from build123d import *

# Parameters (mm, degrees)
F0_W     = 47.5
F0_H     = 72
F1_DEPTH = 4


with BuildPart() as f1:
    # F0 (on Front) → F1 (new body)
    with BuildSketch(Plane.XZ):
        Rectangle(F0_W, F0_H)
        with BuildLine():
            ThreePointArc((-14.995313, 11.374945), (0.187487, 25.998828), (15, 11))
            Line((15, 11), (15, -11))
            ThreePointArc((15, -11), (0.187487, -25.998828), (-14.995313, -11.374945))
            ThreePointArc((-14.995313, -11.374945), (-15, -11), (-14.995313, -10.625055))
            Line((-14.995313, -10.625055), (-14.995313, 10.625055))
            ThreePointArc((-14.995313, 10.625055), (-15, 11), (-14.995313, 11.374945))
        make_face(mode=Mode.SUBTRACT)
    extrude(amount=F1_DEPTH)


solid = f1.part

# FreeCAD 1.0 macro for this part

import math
import FreeCAD as App
import Part
import Sketcher
Q = App.Units.Quantity


def add_polygon(sketch, points):
    """Adds a closed chain of lines whose ends are joined by coincident constraints."""
    first, n = sketch.GeometryCount, len(points)
    for a, b in zip(points, points[1:] + points[:1]):
        sketch.addGeometry(Part.LineSegment(App.Vector(*a, 0), App.Vector(*b, 0)), False)
    for i in range(n):
        sketch.addConstraint(Sketcher.Constraint("Coincident", first + i, 2, first + (i + 1) % n, 1))

doc = App.newDocument("Part")
body = doc.addObject("PartDesign::Body", "Body")

# Sketch on XZ plane
sketch1 = doc.addObject("Sketcher::SketchObject", "Sketch")
body.addObject(sketch1)
sketch1.AttachmentSupport = (doc.XZ_Plane, [""])
sketch1.MapMode = "FlatFace"
add_polygon(sketch1, [(-23.75, 36), (-23.75, -36), (23.75, -36), (23.75, 36)])  # lines 0-3
sketch1.addGeometry(Part.ArcOfCircle(Part.Circle(App.Vector(-0.000456, 11, 0), App.Vector(0, 0, 1), 14.999544), math.radians(178.567623), math.radians(181.432377)), False)  # 4
sketch1.addGeometry(Part.ArcOfCircle(Part.Circle(App.Vector(0, 11, 0), App.Vector(0, 0, 1), 15), math.radians(0.000001), math.radians(178.567666)), False)  # 5
sketch1.addGeometry(Part.LineSegment(App.Vector(15, 11, 0), App.Vector(15, -11, 0)), False)  # 6
sketch1.addGeometry(Part.ArcOfCircle(Part.Circle(App.Vector(0, -11, 0), App.Vector(0, 0, 1), 15), math.radians(-178.567666), math.radians(-0.000001)), False)  # 7
sketch1.addGeometry(Part.ArcOfCircle(Part.Circle(App.Vector(-0.000456, -11, 0), App.Vector(0, 0, 1), 14.999544), math.radians(178.567623), math.radians(181.432377)), False)  # 8
sketch1.addGeometry(Part.LineSegment(App.Vector(-14.995313, -10.625055, 0), App.Vector(-14.995313, 10.625055, 0)), False)  # 9
sketch1.addConstraint(Sketcher.Constraint("Coincident", 4, 1, 5, 2))
sketch1.addConstraint(Sketcher.Constraint("Coincident", 5, 1, 6, 1))
sketch1.addConstraint(Sketcher.Constraint("Coincident", 6, 2, 7, 2))
sketch1.addConstraint(Sketcher.Constraint("Coincident", 7, 1, 8, 2))
sketch1.addConstraint(Sketcher.Constraint("Coincident", 8, 1, 9, 1))
sketch1.addConstraint(Sketcher.Constraint("Coincident", 9, 2, 4, 2))
sketch1.addConstraint(Sketcher.Constraint("Vertical", 0))
sketch1.addConstraint(Sketcher.Constraint("Horizontal", 1))
sketch1.addConstraint(Sketcher.Constraint("Vertical", 2))
sketch1.addConstraint(Sketcher.Constraint("Horizontal", 3))
sketch1.addConstraint(Sketcher.Constraint("Vertical", 6))
sketch1.addConstraint(Sketcher.Constraint("Vertical", 9))
sketch1.addConstraint(Sketcher.Constraint("PointOnObject", 5, 3, -2))
sketch1.addConstraint(Sketcher.Constraint("PointOnObject", 7, 3, -2))
sketch1.addConstraint(Sketcher.Constraint("Radius", 5, Q("15 mm")))
sketch1.addConstraint(Sketcher.Constraint("DistanceY", 0, 2, 0, 1, Q("72 mm")))
sketch1.addConstraint(Sketcher.Constraint("DistanceY", 6, 2, 6, 1, Q("22 mm")))
sketch1.addConstraint(Sketcher.Constraint("DistanceX", 1, 1, 1, 2, Q("47.5 mm")))
sketch1.addConstraint(Sketcher.Constraint("DistanceY", -1, 1, 4, 3, Q("11 mm")))
sketch1.addConstraint(Sketcher.Constraint("DistanceY", -1, 1, 5, 3, Q("11 mm")))
sketch1.addConstraint(Sketcher.Constraint("DistanceY", 7, 3, -1, 1, Q("11 mm")))
sketch1.addConstraint(Sketcher.Constraint("DistanceY", 8, 3, -1, 1, Q("11 mm")))
sketch1.addConstraint(Sketcher.Constraint("DistanceY", 0, 2, -1, 1, Q("36 mm")))
sketch1.addConstraint(Sketcher.Constraint("DistanceY", -1, 1, 5, 1, Q("11 mm")))
sketch1.addConstraint(Sketcher.Constraint("DistanceY", 8, 1, 4, 1, Q("22 mm")))
sketch1.addConstraint(Sketcher.Constraint("DistanceY", 7, 1, 9, 2, Q("22 mm")))
sketch1.addConstraint(Sketcher.Constraint("DistanceX", 0, 2, -1, 1, Q("23.75 mm")))
sketch1.addConstraint(Sketcher.Constraint("Radius", 4, Q("14.999544 mm")))
sketch1.addConstraint(Sketcher.Constraint("Radius", 8, Q("14.999544 mm")))
sketch1.addConstraint(Sketcher.Constraint("DistanceY", 9, 1, 9, 2, Q("21.25011 mm")))
pad1 = doc.addObject("PartDesign::Pad", "Pad")
body.addObject(pad1)
pad1.Profile = sketch1
pad1.Length = 4

doc.recompute()
